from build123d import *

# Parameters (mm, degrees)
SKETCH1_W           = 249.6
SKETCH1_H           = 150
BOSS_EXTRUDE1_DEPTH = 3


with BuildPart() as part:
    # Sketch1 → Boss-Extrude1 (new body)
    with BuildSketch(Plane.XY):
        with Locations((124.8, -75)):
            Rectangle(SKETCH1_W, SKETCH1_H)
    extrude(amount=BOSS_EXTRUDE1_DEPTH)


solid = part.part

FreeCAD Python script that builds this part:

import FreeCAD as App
import Part
import Sketcher

doc = App.newDocument("Part")
body = doc.addObject("PartDesign::Body", "Body")

sketch1 = body.newObject("Sketcher::SketchObject", "Sketch")
sketch1.AttachmentSupport = (doc.getObject("XY_Plane"), [""])
sketch1.MapMode = "FlatFace"
sketch1.addGeometry([
    Part.LineSegment(App.Vector(0, 0, 0), App.Vector(0, -150, 0)),
    Part.LineSegment(App.Vector(0, -150, 0), App.Vector(250, -150, 0)),
    Part.LineSegment(App.Vector(250, -150, 0), App.Vector(250, 0, 0)),
    Part.LineSegment(App.Vector(250, 0, 0), App.Vector(0, 0, 0)),
], False)
sketch1.addConstraint([
    Sketcher.Constraint("Coincident", 0, 2, 1, 1),
    Sketcher.Constraint("Coincident", 1, 2, 2, 1),
    Sketcher.Constraint("Coincident", 2, 2, 3, 1),
    Sketcher.Constraint("Coincident", 3, 2, 0, 1),
    Sketcher.Constraint("Vertical", 0),
    Sketcher.Constraint("Horizontal", 1),
    Sketcher.Constraint("Vertical", 2),
    Sketcher.Constraint("Horizontal", 3),
    Sketcher.Constraint("Coincident", 3, 2, -1, 1),
    Sketcher.Constraint("DistanceY", 0, 2, 0, 1, 150.0),
    Sketcher.Constraint("DistanceX", 1, 1, 1, 2, 249.6),
])
pad1 = body.newObject("PartDesign::Pad", "Pad")
pad1.Profile = sketch1
pad1.Length = 3

doc.recompute()
